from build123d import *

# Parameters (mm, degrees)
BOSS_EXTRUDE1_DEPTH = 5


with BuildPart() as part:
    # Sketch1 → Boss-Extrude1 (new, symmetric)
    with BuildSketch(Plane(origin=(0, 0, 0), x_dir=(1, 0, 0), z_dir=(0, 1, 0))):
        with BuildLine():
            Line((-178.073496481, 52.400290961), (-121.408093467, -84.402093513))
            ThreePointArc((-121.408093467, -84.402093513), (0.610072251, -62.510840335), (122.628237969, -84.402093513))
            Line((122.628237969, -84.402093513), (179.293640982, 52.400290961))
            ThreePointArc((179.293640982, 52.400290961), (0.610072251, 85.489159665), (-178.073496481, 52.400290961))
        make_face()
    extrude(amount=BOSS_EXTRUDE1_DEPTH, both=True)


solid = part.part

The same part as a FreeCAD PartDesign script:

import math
import FreeCAD as App
import Part
import Sketcher

V = App.Vector
Q = App.Units.Quantity

doc = App.newDocument("Part")
body = doc.addObject("PartDesign::Body", "Body")

sketch1 = body.newObject("Sketcher::SketchObject", "Sketch")
sketch1.AttachmentSupport = (doc.getObject("XZ_Plane"), [""])
sketch1.MapMode = "FlatFace"
sketch1.addGeometry([
    Part.LineSegment(V(-178, -52, 0), V(-121, 84, 0)),
    Part.ArcOfCircle(Part.Circle(V(1, 414, 0), V(0, 0, 1), 351), math.radians(-110), math.radians(-70)),
    Part.LineSegment(V(123, 84, 0), V(179, -52, 0)),
    Part.ArcOfCircle(Part.Circle(V(1, 414, 0), V(0, 0, 1), 499), math.radians(-111), math.radians(-69)),
], False)
sketch1.addConstraint([
    Sketcher.Constraint("Coincident", 0, 2, 1, 1),
    Sketcher.Constraint("Coincident", 1, 2, 2, 1),
    Sketcher.Constraint("Coincident", 2, 2, 3, 2),
    Sketcher.Constraint("Coincident", 3, 1, 0, 1),
    Sketcher.Constraint("Coincident", 3, 3, 1, 3),
    Sketcher.Constraint("Horizontal", 0, 2, 1, 2),
    Sketcher.Constraint("Horizontal", 2, 2, 3, 1),
    Sketcher.Constraint("Radius", 1, 351.0),
    Sketcher.Constraint("Radius", 3, 499.0),
    Sketcher.Constraint("Angle", 0, Q("67.5 deg")),
    Sketcher.Constraint("DistanceY", -1, 1, 1, 3, 413.51084),
    Sketcher.Constraint("DistanceX", -1, 1, 2, 2, 179.293641),
    Sketcher.Constraint("DistanceY", 2, 2, -1, 1, 52.400291),
])
pad1 = body.newObject("PartDesign::Pad", "Pad")
pad1.Profile = sketch1
pad1.Length = 10
pad1.Midplane = True

doc.recompute()
